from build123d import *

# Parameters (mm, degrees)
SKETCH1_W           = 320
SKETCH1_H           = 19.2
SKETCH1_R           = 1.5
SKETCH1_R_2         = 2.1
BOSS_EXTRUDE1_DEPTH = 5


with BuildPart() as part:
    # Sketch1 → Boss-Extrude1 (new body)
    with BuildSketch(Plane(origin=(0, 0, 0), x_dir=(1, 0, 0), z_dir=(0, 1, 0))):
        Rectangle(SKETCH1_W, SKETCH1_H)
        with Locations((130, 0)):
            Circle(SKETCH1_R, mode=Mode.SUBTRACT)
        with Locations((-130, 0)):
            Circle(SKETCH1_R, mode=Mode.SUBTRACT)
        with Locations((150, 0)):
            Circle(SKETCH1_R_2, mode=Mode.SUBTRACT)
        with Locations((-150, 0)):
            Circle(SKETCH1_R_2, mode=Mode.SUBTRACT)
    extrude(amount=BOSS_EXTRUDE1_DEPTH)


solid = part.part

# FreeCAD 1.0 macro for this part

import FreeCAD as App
import Part
import Sketcher
Q = App.Units.Quantity

doc = App.newDocument("Part")
body = doc.addObject("PartDesign::Body", "Body")

# Sketch on XZ plane
sketch1 = body.newObject("Sketcher::SketchObject", "Sketch")
sketch1.AttachmentSupport = (doc.getObject("XZ_Plane"), [""])
sketch1.MapMode = "FlatFace"
sketch1.addGeometry(Part.LineSegment(App.Vector(-160, -9.6, 0), App.Vector(-160, 9.6, 0)), False)
sketch1.addGeometry(Part.LineSegment(App.Vector(-160, 9.6, 0), App.Vector(160, 9.6, 0)), False)
sketch1.addGeometry(Part.LineSegment(App.Vector(160, 9.6, 0), App.Vector(160, -9.6, 0)), False)
sketch1.addGeometry(Part.LineSegment(App.Vector(160, -9.6, 0), App.Vector(-160, -9.6, 0)), False)
sketch1.addGeometry(Part.Circle(App.Vector(-150, 0, 0), App.Vector(0, 0, 1), 2.1), False)
sketch1.addGeometry(Part.Circle(App.Vector(-130, 0, 0), App.Vector(0, 0, 1), 1.5), False)
sketch1.addGeometry(Part.Circle(App.Vector(130, 0, 0), App.Vector(0, 0, 1), 1.5), False)
sketch1.addGeometry(Part.Circle(App.Vector(150, 0, 0), App.Vector(0, 0, 1), 2.1), False)
sketch1.addConstraint(Sketcher.Constraint("Coincident", 0, 2, 1, 1))
sketch1.addConstraint(Sketcher.Constraint("Coincident", 1, 2, 2, 1))
sketch1.addConstraint(Sketcher.Constraint("Coincident", 2, 2, 3, 1))
sketch1.addConstraint(Sketcher.Constraint("Coincident", 3, 2, 0, 1))
sketch1.addConstraint(Sketcher.Constraint("Vertical", 0))
sketch1.addConstraint(Sketcher.Constraint("Horizontal", 1))
sketch1.addConstraint(Sketcher.Constraint("Vertical", 2))
sketch1.addConstraint(Sketcher.Constraint("Horizontal", 3))
sketch1.addConstraint(Sketcher.Constraint("Equal", 5, 6))
sketch1.addConstraint(Sketcher.Constraint("Equal", 4, 7))
sketch1.addConstraint(Sketcher.Constraint("Symmetric", 5, 3, 6, 3, -1, 1))
sketch1.addConstraint(Sketcher.Constraint("Symmetric", 4, 3, 7, 3, -1, 1))
sketch1.addConstraint(Sketcher.Constraint("Symmetric", 0, 2, 2, 2, -1, 1))
sketch1.addConstraint(Sketcher.Constraint("PointOnObject", 4, 3, -1))
sketch1.addConstraint(Sketcher.Constraint("PointOnObject", 5, 3, -1))
sketch1.addConstraint(Sketcher.Constraint("Diameter", 5, Q("3 mm")))
sketch1.addConstraint(Sketcher.Constraint("Diameter", 4, Q("4.2 mm")))
sketch1.addConstraint(Sketcher.Constraint("DistanceX", 1, 1, 1, 2, Q("320 mm")))
sketch1.addConstraint(Sketcher.Constraint("DistanceY", 0, 1, 0, 2, Q("19.2 mm")))
sketch1.addConstraint(Sketcher.Constraint("DistanceX", 4, 3, -1, 1, Q("150 mm")))
sketch1.addConstraint(Sketcher.Constraint("DistanceX", 5, 3, -1, 1, Q("130 mm")))
pad1 = body.newObject("PartDesign::Pad", "Pad")
pad1.Profile = sketch1
pad1.Length = 5
pad1.Reversed = True

doc.recompute()
